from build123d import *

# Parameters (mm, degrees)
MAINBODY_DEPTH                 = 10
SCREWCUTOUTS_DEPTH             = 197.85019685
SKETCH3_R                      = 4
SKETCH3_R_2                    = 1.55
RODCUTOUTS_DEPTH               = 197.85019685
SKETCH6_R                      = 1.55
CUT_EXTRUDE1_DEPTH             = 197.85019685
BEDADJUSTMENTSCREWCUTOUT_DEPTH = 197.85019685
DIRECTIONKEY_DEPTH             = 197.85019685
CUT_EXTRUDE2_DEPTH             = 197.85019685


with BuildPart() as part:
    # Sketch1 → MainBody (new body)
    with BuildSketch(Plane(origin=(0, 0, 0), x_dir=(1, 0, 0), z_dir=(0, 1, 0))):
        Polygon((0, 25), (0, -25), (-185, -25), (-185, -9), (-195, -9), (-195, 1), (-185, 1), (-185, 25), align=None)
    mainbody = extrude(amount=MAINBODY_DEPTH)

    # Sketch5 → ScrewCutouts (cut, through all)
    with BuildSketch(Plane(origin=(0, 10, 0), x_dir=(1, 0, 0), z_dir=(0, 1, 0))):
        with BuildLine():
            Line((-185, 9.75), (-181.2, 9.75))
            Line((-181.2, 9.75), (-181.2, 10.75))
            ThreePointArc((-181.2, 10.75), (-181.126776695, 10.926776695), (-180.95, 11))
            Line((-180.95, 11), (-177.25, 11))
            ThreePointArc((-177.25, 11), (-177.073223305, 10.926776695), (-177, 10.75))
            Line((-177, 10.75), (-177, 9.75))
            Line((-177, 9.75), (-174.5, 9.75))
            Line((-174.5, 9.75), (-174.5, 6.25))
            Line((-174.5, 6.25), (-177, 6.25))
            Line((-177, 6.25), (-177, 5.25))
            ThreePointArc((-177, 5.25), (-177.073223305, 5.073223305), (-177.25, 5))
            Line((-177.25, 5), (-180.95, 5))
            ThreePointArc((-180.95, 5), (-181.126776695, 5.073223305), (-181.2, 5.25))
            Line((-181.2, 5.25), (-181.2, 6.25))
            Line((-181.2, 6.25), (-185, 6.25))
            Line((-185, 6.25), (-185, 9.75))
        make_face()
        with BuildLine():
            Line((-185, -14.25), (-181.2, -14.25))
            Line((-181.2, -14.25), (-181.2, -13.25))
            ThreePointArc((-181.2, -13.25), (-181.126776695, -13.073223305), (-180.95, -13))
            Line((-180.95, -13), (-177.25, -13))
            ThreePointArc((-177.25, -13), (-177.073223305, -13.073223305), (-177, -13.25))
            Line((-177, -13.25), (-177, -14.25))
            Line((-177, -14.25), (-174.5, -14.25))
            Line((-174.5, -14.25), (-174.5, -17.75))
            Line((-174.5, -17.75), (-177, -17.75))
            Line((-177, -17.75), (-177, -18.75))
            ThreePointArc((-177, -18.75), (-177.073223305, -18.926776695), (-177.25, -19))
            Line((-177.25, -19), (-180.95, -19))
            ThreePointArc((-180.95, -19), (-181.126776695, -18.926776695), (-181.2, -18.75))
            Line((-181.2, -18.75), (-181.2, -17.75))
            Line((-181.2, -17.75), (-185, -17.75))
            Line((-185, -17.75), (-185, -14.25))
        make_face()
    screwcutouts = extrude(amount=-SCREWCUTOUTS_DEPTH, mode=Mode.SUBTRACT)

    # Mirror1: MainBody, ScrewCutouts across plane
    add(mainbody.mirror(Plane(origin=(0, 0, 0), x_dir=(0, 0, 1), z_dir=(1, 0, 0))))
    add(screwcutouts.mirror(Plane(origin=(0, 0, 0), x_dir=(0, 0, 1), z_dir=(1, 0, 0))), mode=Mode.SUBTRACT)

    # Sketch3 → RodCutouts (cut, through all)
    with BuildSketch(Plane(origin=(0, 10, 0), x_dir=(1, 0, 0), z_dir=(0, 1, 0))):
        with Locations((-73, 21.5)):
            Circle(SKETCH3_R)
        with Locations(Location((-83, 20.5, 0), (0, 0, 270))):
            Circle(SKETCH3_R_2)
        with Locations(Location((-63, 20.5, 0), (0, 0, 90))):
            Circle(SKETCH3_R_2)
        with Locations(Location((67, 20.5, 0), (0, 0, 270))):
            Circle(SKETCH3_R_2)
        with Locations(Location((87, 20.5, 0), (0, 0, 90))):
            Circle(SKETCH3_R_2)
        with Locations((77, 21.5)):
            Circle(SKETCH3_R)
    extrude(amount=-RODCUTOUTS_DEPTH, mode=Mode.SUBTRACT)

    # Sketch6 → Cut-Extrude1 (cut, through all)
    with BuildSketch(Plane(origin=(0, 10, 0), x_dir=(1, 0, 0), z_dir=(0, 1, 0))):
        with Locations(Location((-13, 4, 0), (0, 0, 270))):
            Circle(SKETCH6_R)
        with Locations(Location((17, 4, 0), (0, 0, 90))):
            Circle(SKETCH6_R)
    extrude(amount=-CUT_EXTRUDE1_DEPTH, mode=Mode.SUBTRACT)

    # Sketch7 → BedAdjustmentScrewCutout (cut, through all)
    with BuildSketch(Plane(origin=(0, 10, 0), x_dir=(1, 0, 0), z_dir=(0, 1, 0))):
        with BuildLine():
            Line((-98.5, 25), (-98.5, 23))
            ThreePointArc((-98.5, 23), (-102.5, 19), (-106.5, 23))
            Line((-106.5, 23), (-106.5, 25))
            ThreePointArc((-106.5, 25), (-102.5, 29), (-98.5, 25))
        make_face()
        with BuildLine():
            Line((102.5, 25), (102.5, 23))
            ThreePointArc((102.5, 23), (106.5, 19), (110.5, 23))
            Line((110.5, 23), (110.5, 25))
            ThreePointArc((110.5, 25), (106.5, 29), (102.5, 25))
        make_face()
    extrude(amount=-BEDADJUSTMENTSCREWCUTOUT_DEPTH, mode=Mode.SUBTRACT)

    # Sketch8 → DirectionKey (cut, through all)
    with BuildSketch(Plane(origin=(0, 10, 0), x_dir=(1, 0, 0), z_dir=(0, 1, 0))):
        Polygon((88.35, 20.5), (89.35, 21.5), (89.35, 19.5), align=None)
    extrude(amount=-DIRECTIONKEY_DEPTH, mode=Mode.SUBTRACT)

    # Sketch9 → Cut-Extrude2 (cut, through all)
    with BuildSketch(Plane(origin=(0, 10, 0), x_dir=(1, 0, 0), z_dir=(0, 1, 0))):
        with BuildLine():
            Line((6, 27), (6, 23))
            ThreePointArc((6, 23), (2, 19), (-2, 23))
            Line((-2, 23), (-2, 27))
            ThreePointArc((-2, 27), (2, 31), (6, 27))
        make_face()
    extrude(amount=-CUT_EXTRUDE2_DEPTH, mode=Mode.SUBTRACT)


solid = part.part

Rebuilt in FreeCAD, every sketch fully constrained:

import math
import FreeCAD as App
import Part
import Sketcher


def add_polygon(sketch, points):
    """Adds a closed chain of lines whose ends are joined by coincident constraints."""
    first, n = sketch.GeometryCount, len(points)
    for a, b in zip(points, points[1:] + points[:1]):
        sketch.addGeometry(Part.LineSegment(App.Vector(*a, 0), App.Vector(*b, 0)), False)
    for i in range(n):
        sketch.addConstraint(Sketcher.Constraint("Coincident", first + i, 2, first + (i + 1) % n, 1))

doc = App.newDocument("Part")
body = doc.addObject("PartDesign::Body", "Body")

sketch1 = body.newObject("Sketcher::SketchObject", "Sketch")
sketch1.AttachmentSupport = (doc.getObject("XZ_Plane"), [""])
sketch1.MapMode = "FlatFace"
add_polygon(sketch1, [(0, 25), (0, -25), (-185, -25), (-185, -1), (-195, -1), (-195, 9), (-185, 9), (-185, 25)])
sketch1.addConstraint([
    Sketcher.Constraint("Vertical", 0),
    Sketcher.Constraint("Horizontal", 1),
    Sketcher.Constraint("Vertical", 2),
    Sketcher.Constraint("Horizontal", 3),
    Sketcher.Constraint("Vertical", 4),
    Sketcher.Constraint("Horizontal", 5),
    Sketcher.Constraint("Vertical", 6),
    Sketcher.Constraint("Horizontal", 7),
    Sketcher.Constraint("Symmetric", 0, 2, 7, 2, -1, 1),
    Sketcher.Constraint("Vertical", 2, 2, 5, 2),
    Sketcher.Constraint("Equal", 5, 4),
    Sketcher.Constraint("DistanceX", 1, 2, 1, 1, 185.0),
    Sketcher.Constraint("DistanceX", 3, 2, 3, 1, 10.0),
    Sketcher.Constraint("DistanceY", 0, 2, 0, 1, 50.0),
    Sketcher.Constraint("DistanceY", 2, 1, 2, 2, 24.0),
])
pad1 = body.newObject("PartDesign::Pad", "Pad")
pad1.Profile = sketch1
pad1.Length = 10
pad1.Reversed = True

sketch2 = body.newObject("Sketcher::SketchObject", "Sketch001")
sketch2.AttachmentSupport = (doc.getObject("XZ_Plane"), [""])
sketch2.MapMode = "FlatFace"
sketch2.AttachmentOffset = App.Placement(App.Vector(0, 0, -10), App.Rotation())
sketch2.addGeometry([
    Part.LineSegment(App.Vector(-181.2, -9.75, 0), App.Vector(-185, -9.75, 0)),
    Part.LineSegment(App.Vector(-185, -9.75, 0), App.Vector(-185, -6.25, 0)),
    Part.LineSegment(App.Vector(-185, -6.25, 0), App.Vector(-181.2, -6.25, 0)),
    Part.LineSegment(App.Vector(-181.2, -6.25, 0), App.Vector(-181.2, -5.25, 0)),
    Part.ArcOfCircle(Part.Circle(App.Vector(-180.95, -5.25, 0), App.Vector(0, 0, 1), 0.25), math.radians(90), math.radians(180)),
    Part.LineSegment(App.Vector(-180.95, -5, 0), App.Vector(-177.25, -5, 0)),
    Part.ArcOfCircle(Part.Circle(App.Vector(-177.25, -5.25, 0), App.Vector(0, 0, 1), 0.25), math.radians(0), math.radians(90)),
    Part.LineSegment(App.Vector(-177, -5.25, 0), App.Vector(-177, -6.25, 0)),
    Part.LineSegment(App.Vector(-177, -6.25, 0), App.Vector(-174.5, -6.25, 0)),
    Part.LineSegment(App.Vector(-174.5, -6.25, 0), App.Vector(-174.5, -9.75, 0)),
    Part.LineSegment(App.Vector(-174.5, -9.75, 0), App.Vector(-177, -9.75, 0)),
    Part.LineSegment(App.Vector(-177, -9.75, 0), App.Vector(-177, -10.75, 0)),
    Part.ArcOfCircle(Part.Circle(App.Vector(-177.25, -10.75, 0), App.Vector(0, 0, 1), 0.25), math.radians(-90), math.radians(0)),
    Part.LineSegment(App.Vector(-177.25, -11, 0), App.Vector(-180.95, -11, 0)),
    Part.ArcOfCircle(Part.Circle(App.Vector(-180.95, -10.75, 0), App.Vector(0, 0, 1), 0.25), math.radians(-180), math.radians(-90)),
    Part.LineSegment(App.Vector(-181.2, -10.75, 0), App.Vector(-181.2, -9.75, 0)),
    Part.LineSegment(App.Vector(-181.2, 14.25, 0), App.Vector(-185, 14.25, 0)),
    Part.LineSegment(App.Vector(-185, 14.25, 0), App.Vector(-185, 17.75, 0)),
    Part.LineSegment(App.Vector(-185, 17.75, 0), App.Vector(-181.2, 17.75, 0)),
    Part.LineSegment(App.Vector(-181.2, 17.75, 0), App.Vector(-181.2, 18.75, 0)),
    Part.ArcOfCircle(Part.Circle(App.Vector(-180.95, 18.75, 0), App.Vector(0, 0, 1), 0.25), math.radians(90), math.radians(180)),
    Part.LineSegment(App.Vector(-180.95, 19, 0), App.Vector(-177.25, 19, 0)),
    Part.ArcOfCircle(Part.Circle(App.Vector(-177.25, 18.75, 0), App.Vector(0, 0, 1), 0.25), math.radians(0), math.radians(90)),
    Part.LineSegment(App.Vector(-177, 18.75, 0), App.Vector(-177, 17.75, 0)),
    Part.LineSegment(App.Vector(-177, 17.75, 0), App.Vector(-174.5, 17.75, 0)),
    Part.LineSegment(App.Vector(-174.5, 17.75, 0), App.Vector(-174.5, 14.25, 0)),
    Part.LineSegment(App.Vector(-174.5, 14.25, 0), App.Vector(-177, 14.25, 0)),
    Part.LineSegment(App.Vector(-177, 14.25, 0), App.Vector(-177, 13.25, 0)),
    Part.ArcOfCircle(Part.Circle(App.Vector(-177.25, 13.25, 0), App.Vector(0, 0, 1), 0.25), math.radians(-90), math.radians(0)),
    Part.LineSegment(App.Vector(-177.25, 13, 0), App.Vector(-180.95, 13, 0)),
    Part.ArcOfCircle(Part.Circle(App.Vector(-180.95, 13.25, 0), App.Vector(0, 0, 1), 0.25), math.radians(-180), math.radians(-90)),
    Part.LineSegment(App.Vector(-181.2, 13.25, 0), App.Vector(-181.2, 14.25, 0)),
], False)
sketch2.addConstraint([
    Sketcher.Constraint("Coincident", 0, 2, 1, 1),
    Sketcher.Constraint("Coincident", 1, 2, 2, 1),
    Sketcher.Constraint("Coincident", 2, 2, 3, 1),
    Sketcher.Constraint("Tangent", 3, 2, 4, 2),
    Sketcher.Constraint("Tangent", 4, 1, 5, 1),
    Sketcher.Constraint("Tangent", 5, 2, 6, 2),
    Sketcher.Constraint("Tangent", 6, 1, 7, 1),
    Sketcher.Constraint("Coincident", 7, 2, 8, 1),
    Sketcher.Constraint("Coincident", 8, 2, 9, 1),
    Sketcher.Constraint("Coincident", 9, 2, 10, 1),
    Sketcher.Constraint("Coincident", 10, 2, 11, 1),
    Sketcher.Constraint("Tangent", 11, 2, 12, 2),
    Sketcher.Constraint("Tangent", 12, 1, 13, 1),
    Sketcher.Constraint("Tangent", 13, 2, 14, 2),
    Sketcher.Constraint("Tangent", 14, 1, 15, 1),
    Sketcher.Constraint("Coincident", 15, 2, 0, 1),
    Sketcher.Constraint("Coincident", 16, 2, 17, 1),
    Sketcher.Constraint("Coincident", 17, 2, 18, 1),
    Sketcher.Constraint("Coincident", 18, 2, 19, 1),
    Sketcher.Constraint("Tangent", 19, 2, 20, 2),
    Sketcher.Constraint("Tangent", 20, 1, 21, 1),
    Sketcher.Constraint("Tangent", 21, 2, 22, 2),
    Sketcher.Constraint("Tangent", 22, 1, 23, 1),
    Sketcher.Constraint("Coincident", 23, 2, 24, 1),
    Sketcher.Constraint("Coincident", 24, 2, 25, 1),
    Sketcher.Constraint("Coincident", 25, 2, 26, 1),
    Sketcher.Constraint("Coincident", 26, 2, 27, 1),
    Sketcher.Constraint("Tangent", 27, 2, 28, 2),
    Sketcher.Constraint("Tangent", 28, 1, 29, 1),
    Sketcher.Constraint("Tangent", 29, 2, 30, 2),
    Sketcher.Constraint("Tangent", 30, 1, 31, 1),
    Sketcher.Constraint("Coincident", 31, 2, 16, 1),
    Sketcher.Constraint("Horizontal", 0),
    Sketcher.Constraint("Vertical", 1),
    Sketcher.Constraint("Horizontal", 2),
    Sketcher.Constraint("Vertical", 3),
    Sketcher.Constraint("Horizontal", 5),
    Sketcher.Constraint("Vertical", 7),
    Sketcher.Constraint("Horizontal", 8),
    Sketcher.Constraint("Vertical", 9),
    Sketcher.Constraint("Horizontal", 10),
    Sketcher.Constraint("Vertical", 11),
    Sketcher.Constraint("Horizontal", 13),
    Sketcher.Constraint("Vertical", 15),
    Sketcher.Constraint("Horizontal", 16),
    Sketcher.Constraint("Vertical", 17),
    Sketcher.Constraint("Horizontal", 18),
    Sketcher.Constraint("Vertical", 19),
    Sketcher.Constraint("Horizontal", 21),
    Sketcher.Constraint("Vertical", 23),
    Sketcher.Constraint("Horizontal", 24),
    Sketcher.Constraint("Vertical", 25),
    Sketcher.Constraint("Horizontal", 26),
    Sketcher.Constraint("Vertical", 27),
    Sketcher.Constraint("Horizontal", 29),
    Sketcher.Constraint("Vertical", 31),
    Sketcher.Constraint("Equal", 4, 6),
    Sketcher.Constraint("Equal", 6, 12),
    Sketcher.Constraint("Equal", 12, 14),
    Sketcher.Constraint("Equal", 14, 20),
    Sketcher.Constraint("Equal", 20, 22),
    Sketcher.Constraint("Equal", 22, 28),
    Sketcher.Constraint("Equal", 28, 30),
    Sketcher.Constraint("Horizontal", 2, 2, 7, 2),
    Sketcher.Constraint("Horizontal", 0, 2, 9, 2),
    Sketcher.Constraint("Horizontal", 18, 2, 23, 2),
    Sketcher.Constraint("Horizontal", 16, 2, 25, 2),
    Sketcher.Constraint("Vertical", 6, 3, 12, 3),
    Sketcher.Constraint("Vertical", 4, 3, 14, 3),
    Sketcher.Constraint("Vertical", 14, 3, 20, 3),
    Sketcher.Constraint("Vertical", 12, 3, 22, 3),
    Sketcher.Constraint("Vertical", 22, 3, 28, 3),
    Sketcher.Constraint("Vertical", 20, 3, 30, 3),
    Sketcher.Constraint("Vertical", 1, 2, 16, 2),
    Sketcher.Constraint("Vertical", 9, 2, 24, 2),
    Sketcher.Constraint("Equal", 7, 11),
    Sketcher.Constraint("Equal", 9, 17),
    Sketcher.Constraint("Equal", 15, 19),
    Sketcher.Constraint("Equal", 23, 27),
    Sketcher.Constraint("DistanceY", 3, 1, 3, 2, 1.0),
    Sketcher.Constraint("Radius", 4, 0.25),
    Sketcher.Constraint("DistanceX", 0, 2, 0, 1, 3.8),
    Sketcher.Constraint("DistanceX", 5, 1, 5, 2, 3.7),
    Sketcher.Constraint("DistanceX", 8, 1, 8, 2, 2.5),
    Sketcher.Constraint("DistanceY", 1, 1, 1, 2, 3.5),
    Sketcher.Constraint("DistanceX", 0, 2, -1, 1, 185.0),
    Sketcher.Constraint("DistanceY", 4, 1, -1, 1, 5.0),
    Sketcher.Constraint("DistanceY", -1, 1, 20, 1, 19.0),
])
pocket1 = body.newObject("PartDesign::Pocket", "Pocket")
pocket1.Profile = sketch2
pocket1.Type = "ThroughAll"
pocket1.Reversed = True
doc.recompute()

mirrored = body.newObject("PartDesign::Mirrored", "Mirrored")
mirrored.Originals = [pad1, pocket1]
mirrored.MirrorPlane = (doc.getObject("YZ_Plane"), [""])
body.Tip = mirrored

sketch3 = body.newObject("Sketcher::SketchObject", "Sketch002")
sketch3.AttachmentSupport = (doc.getObject("XZ_Plane"), [""])
sketch3.MapMode = "FlatFace"
sketch3.AttachmentOffset = App.Placement(App.Vector(0, 0, -10), App.Rotation())
sketch3.addGeometry([
    Part.Circle(App.Vector(-73, -21.5, 0), App.Vector(0, 0, 1), 4),
    Part.Circle(App.Vector(-83, -20.5, 0), App.Vector(0, 0, 1), 1.55),
    Part.Circle(App.Vector(-63, -20.5, 0), App.Vector(0, 0, 1), 1.55),
    Part.Circle(App.Vector(67, -20.5, 0), App.Vector(0, 0, 1), 1.55),
    Part.Circle(App.Vector(87, -20.5, 0), App.Vector(0, 0, 1), 1.55),
    Part.Circle(App.Vector(77, -21.5, 0), App.Vector(0, 0, 1), 4),
], False)
sketch3.addConstraint([
    Sketcher.Constraint("Equal", 1, 2),
    Sketcher.Constraint("Equal", 2, 3),
    Sketcher.Constraint("Equal", 3, 4),
    Sketcher.Constraint("Equal", 0, 5),
    Sketcher.Constraint("Horizontal", 1, 3, 2, 3),
    Sketcher.Constraint("Horizontal", 2, 3, 3, 3),
    Sketcher.Constraint("Horizontal", 3, 3, 4, 3),
    Sketcher.Constraint("Horizontal", 0, 3, 5, 3),
    Sketcher.Constraint("Diameter", 0, 8.0),
    Sketcher.Constraint("Diameter", 1, 3.1),
    Sketcher.Constraint("DistanceX", 0, 3, -1, 1, 73.0),
    Sketcher.Constraint("DistanceX", 1, 3, -1, 1, 83.0),
    Sketcher.Constraint("DistanceX", 2, 3, -1, 1, 63.0),
    Sketcher.Constraint("DistanceX", -1, 1, 3, 3, 67.0),
    Sketcher.Constraint("DistanceX", -1, 1, 4, 3, 87.0),
    Sketcher.Constraint("DistanceX", -1, 1, 5, 3, 77.0),
    Sketcher.Constraint("DistanceY", 0, 3, 1, 3, 1.0),
    Sketcher.Constraint("DistanceY", 0, 3, -1, 1, 21.5),
])
pocket2 = body.newObject("PartDesign::Pocket", "Pocket001")
pocket2.Profile = sketch3
pocket2.Type = "ThroughAll"
pocket2.Reversed = True

sketch4 = body.newObject("Sketcher::SketchObject", "Sketch003")
sketch4.AttachmentSupport = (doc.getObject("XZ_Plane"), [""])
sketch4.MapMode = "FlatFace"
sketch4.AttachmentOffset = App.Placement(App.Vector(0, 0, -10), App.Rotation())
sketch4.addGeometry([
    Part.Circle(App.Vector(-13, -4, 0), App.Vector(0, 0, 1), 1.55),
    Part.Circle(App.Vector(17, -4, 0), App.Vector(0, 0, 1), 1.55),
], False)
sketch4.addConstraint([
    Sketcher.Constraint("Equal", 0, 1),
    Sketcher.Constraint("Horizontal", 0, 3, 1, 3),
    Sketcher.Constraint("Diameter", 0, 3.1),
    Sketcher.Constraint("DistanceX", 0, 3, -1, 1, 13.0),
    Sketcher.Constraint("DistanceY", 0, 3, -1, 1, 4.0),
    Sketcher.Constraint("DistanceX", -1, 1, 1, 3, 17.0),
])
pocket3 = body.newObject("PartDesign::Pocket", "Pocket002")
pocket3.Profile = sketch4
pocket3.Type = "ThroughAll"
pocket3.Reversed = True

sketch5 = body.newObject("Sketcher::SketchObject", "Sketch004")
sketch5.AttachmentSupport = (doc.getObject("XZ_Plane"), [""])
sketch5.MapMode = "FlatFace"
sketch5.AttachmentOffset = App.Placement(App.Vector(0, 0, -10), App.Rotation())
sketch5.addGeometry([
    Part.LineSegment(App.Vector(-98.5, -23, 0), App.Vector(-98.5, -25, 0)),
    Part.ArcOfCircle(Part.Circle(App.Vector(-102.5, -25, 0), App.Vector(0, 0, 1), 4), math.radians(180), math.radians(360)),
    Part.LineSegment(App.Vector(-106.5, -25, 0), App.Vector(-106.5, -23, 0)),
    Part.ArcOfCircle(Part.Circle(App.Vector(-102.5, -23, 0), App.Vector(0, 0, 1), 4), math.radians(0), math.radians(180)),
    Part.LineSegment(App.Vector(102.5, -25, 0), App.Vector(102.5, -23, 0)),
    Part.ArcOfCircle(Part.Circle(App.Vector(106.5, -23, 0), App.Vector(0, 0, 1), 4), math.radians(0), math.radians(180)),
    Part.LineSegment(App.Vector(110.5, -23, 0), App.Vector(110.5, -25, 0)),
    Part.ArcOfCircle(Part.Circle(App.Vector(106.5, -25, 0), App.Vector(0, 0, 1), 4), math.radians(180), math.radians(360)),
], False)
sketch5.addConstraint([
    Sketcher.Constraint("Tangent", 0, 2, 1, 2),
    Sketcher.Constraint("Tangent", 1, 1, 2, 1),
    Sketcher.Constraint("Tangent", 2, 2, 3, 2),
    Sketcher.Constraint("Tangent", 3, 1, 0, 1),
    Sketcher.Constraint("Tangent", 4, 2, 5, 2),
    Sketcher.Constraint("Tangent", 5, 1, 6, 1),
    Sketcher.Constraint("Tangent", 6, 2, 7, 2),
    Sketcher.Constraint("Tangent", 7, 1, 4, 1),
    Sketcher.Constraint("Vertical", 0),
    Sketcher.Constraint("Vertical", 2),
    Sketcher.Constraint("Vertical", 4),
    Sketcher.Constraint("Vertical", 6),
    Sketcher.Constraint("Equal", 3, 5),
    Sketcher.Constraint("Horizontal", 3, 3, 5, 3),
    Sketcher.Constraint("Horizontal", 1, 3, 7, 3),
    Sketcher.Constraint("Radius", 1, 4.0),
    Sketcher.Constraint("DistanceY", 0, 2, 0, 1, 2.0),
    Sketcher.Constraint("DistanceY", 1, 3, -1, 1, 25.0),
    Sketcher.Constraint("DistanceX", 3, 3, 5, 3, 209.0),
    Sketcher.Constraint("DistanceX", 1, 3, -1, 1, 102.5),
])
pocket4 = body.newObject("PartDesign::Pocket", "Pocket003")
pocket4.Profile = sketch5
pocket4.Type = "ThroughAll"
pocket4.Reversed = True

sketch6 = body.newObject("Sketcher::SketchObject", "Sketch005")
sketch6.AttachmentSupport = (doc.getObject("XZ_Plane"), [""])
sketch6.MapMode = "FlatFace"
sketch6.AttachmentOffset = App.Placement(App.Vector(0, 0, -10), App.Rotation())
add_polygon(sketch6, [(89.35, -21.5), (88.35, -20.5), (89.35, -19.5)])
sketch6.addConstraint([
    Sketcher.Constraint("Vertical", 2),
    Sketcher.Constraint("Perpendicular", 0, 1),
    Sketcher.Constraint("Equal", 0, 1),
    Sketcher.Constraint("DistanceY", 2, 2, 2, 1, 2.0),
    Sketcher.Constraint("DistanceY", 0, 2, -1, 1, 20.5),
    Sketcher.Constraint("DistanceX", -1, 1, 0, 2, 88.35),
])
pocket5 = body.newObject("PartDesign::Pocket", "Pocket004")
pocket5.Profile = sketch6
pocket5.Type = "ThroughAll"
pocket5.Reversed = True

sketch7 = body.newObject("Sketcher::SketchObject", "Sketch006")
sketch7.AttachmentSupport = (doc.getObject("XZ_Plane"), [""])
sketch7.MapMode = "FlatFace"
sketch7.AttachmentOffset = App.Placement(App.Vector(0, 0, -10), App.Rotation())
sketch7.addGeometry([
    Part.LineSegment(App.Vector(6, -23, 0), App.Vector(6, -27, 0)),
    Part.ArcOfCircle(Part.Circle(App.Vector(2, -27, 0), App.Vector(0, 0, 1), 4), math.radians(180), math.radians(360)),
    Part.LineSegment(App.Vector(-2, -27, 0), App.Vector(-2, -23, 0)),
    Part.ArcOfCircle(Part.Circle(App.Vector(2, -23, 0), App.Vector(0, 0, 1), 4), math.radians(0), math.radians(180)),
], False)
sketch7.addConstraint([
    Sketcher.Constraint("Tangent", 0, 2, 1, 2),
    Sketcher.Constraint("Tangent", 1, 1, 2, 1),
    Sketcher.Constraint("Tangent", 2, 2, 3, 2),
    Sketcher.Constraint("Tangent", 3, 1, 0, 1),
    Sketcher.Constraint("Vertical", 0),
    Sketcher.Constraint("Vertical", 2),
    Sketcher.Constraint("Radius", 1, 4.0),
    Sketcher.Constraint("DistanceY", 0, 2, 0, 1, 4.0),
    Sketcher.Constraint("DistanceX", -1, 1, 1, 3, 2.0),
    Sketcher.Constraint("DistanceY", 1, 3, -1, 1, 27.0),
])
pocket6 = body.newObject("PartDesign::Pocket", "Pocket005")
pocket6.Profile = sketch7
pocket6.Type = "ThroughAll"
pocket6.Reversed = True

doc.recompute()
